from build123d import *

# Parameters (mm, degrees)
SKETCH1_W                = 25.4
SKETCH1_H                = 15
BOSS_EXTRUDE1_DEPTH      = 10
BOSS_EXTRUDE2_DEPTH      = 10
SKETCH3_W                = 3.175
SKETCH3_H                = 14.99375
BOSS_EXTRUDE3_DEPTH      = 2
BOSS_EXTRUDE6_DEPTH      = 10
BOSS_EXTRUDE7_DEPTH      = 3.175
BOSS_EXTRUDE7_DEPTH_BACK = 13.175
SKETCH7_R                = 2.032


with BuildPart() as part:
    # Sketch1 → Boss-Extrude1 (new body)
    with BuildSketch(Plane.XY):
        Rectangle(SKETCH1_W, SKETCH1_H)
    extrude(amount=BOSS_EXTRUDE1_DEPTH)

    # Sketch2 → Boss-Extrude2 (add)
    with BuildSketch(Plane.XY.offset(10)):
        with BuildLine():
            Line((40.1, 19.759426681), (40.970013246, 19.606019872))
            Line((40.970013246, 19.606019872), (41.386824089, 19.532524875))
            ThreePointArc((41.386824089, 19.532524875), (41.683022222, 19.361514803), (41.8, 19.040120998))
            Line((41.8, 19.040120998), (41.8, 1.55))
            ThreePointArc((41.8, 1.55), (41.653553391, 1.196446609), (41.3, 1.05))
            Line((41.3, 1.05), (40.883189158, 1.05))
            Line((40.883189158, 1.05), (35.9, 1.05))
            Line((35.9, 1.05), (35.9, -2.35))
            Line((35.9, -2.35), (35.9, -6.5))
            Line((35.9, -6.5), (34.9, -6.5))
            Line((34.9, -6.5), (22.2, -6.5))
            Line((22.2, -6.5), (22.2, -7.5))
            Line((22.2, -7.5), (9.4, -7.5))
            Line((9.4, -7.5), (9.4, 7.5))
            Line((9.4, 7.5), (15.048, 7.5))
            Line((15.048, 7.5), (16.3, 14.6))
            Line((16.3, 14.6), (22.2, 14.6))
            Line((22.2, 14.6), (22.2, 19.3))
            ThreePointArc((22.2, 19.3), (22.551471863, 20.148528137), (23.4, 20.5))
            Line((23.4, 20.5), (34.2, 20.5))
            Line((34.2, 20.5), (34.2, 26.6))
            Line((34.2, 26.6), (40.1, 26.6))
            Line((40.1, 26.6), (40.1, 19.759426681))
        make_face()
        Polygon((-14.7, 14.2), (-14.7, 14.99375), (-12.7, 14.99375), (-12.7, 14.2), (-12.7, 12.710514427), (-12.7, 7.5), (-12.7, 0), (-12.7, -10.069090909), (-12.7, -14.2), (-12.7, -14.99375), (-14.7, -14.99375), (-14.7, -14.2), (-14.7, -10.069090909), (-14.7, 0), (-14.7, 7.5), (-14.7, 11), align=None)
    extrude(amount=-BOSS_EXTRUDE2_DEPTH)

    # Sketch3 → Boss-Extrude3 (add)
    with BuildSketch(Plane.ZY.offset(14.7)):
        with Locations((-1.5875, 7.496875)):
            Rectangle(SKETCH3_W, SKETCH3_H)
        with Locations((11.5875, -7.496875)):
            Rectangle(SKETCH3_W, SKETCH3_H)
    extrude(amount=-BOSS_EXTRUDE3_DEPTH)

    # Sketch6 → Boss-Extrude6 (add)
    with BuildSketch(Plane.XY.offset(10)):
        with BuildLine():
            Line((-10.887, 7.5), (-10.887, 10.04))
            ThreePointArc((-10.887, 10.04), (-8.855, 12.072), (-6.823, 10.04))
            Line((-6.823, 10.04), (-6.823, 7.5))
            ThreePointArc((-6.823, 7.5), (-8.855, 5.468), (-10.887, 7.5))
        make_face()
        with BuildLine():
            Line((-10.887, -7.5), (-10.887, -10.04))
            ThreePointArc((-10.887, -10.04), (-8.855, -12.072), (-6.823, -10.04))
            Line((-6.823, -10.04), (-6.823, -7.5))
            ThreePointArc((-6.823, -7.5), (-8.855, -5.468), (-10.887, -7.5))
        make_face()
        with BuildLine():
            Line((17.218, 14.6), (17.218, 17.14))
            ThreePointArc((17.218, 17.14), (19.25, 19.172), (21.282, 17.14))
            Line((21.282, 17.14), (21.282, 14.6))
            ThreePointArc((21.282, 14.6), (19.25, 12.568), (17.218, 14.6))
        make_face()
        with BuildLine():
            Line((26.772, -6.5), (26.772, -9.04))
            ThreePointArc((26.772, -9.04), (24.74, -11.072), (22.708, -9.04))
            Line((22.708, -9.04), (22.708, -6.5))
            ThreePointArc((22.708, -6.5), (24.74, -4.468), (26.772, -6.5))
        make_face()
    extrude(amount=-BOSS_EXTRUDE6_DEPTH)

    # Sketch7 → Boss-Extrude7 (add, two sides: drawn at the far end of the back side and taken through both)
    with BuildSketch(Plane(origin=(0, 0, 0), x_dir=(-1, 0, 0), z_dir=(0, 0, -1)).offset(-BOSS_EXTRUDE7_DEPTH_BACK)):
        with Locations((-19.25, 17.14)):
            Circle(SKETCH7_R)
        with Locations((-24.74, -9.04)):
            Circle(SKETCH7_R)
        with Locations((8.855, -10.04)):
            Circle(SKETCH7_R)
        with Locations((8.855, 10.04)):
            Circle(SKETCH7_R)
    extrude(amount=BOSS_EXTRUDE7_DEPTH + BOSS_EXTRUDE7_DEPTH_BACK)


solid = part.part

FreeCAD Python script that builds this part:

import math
import FreeCAD as App
import Part
import Sketcher
Q = App.Units.Quantity

doc = App.newDocument("Part")
params = doc.addObject("Spreadsheet::Sheet", "Params")
for row, (alias, value) in enumerate([
    ("sketch1_height", "15 mm"),
    ("sketch1_width", "25.4 mm"),
    ("pad1_length", "10 mm"),
    ("sketch2_radius", "1.2 mm"),
    ("sketch2_radius2", "0.5 mm"),
    ("sketch2_width", "2 mm"),
    ("sketch2_height", "15 mm"),
    ("sketch2_height2", "1 mm"),
    ("pad2_length", "10 mm"),
    ("pad3_length", "2 mm"),
    ("sketch4_height", "2.54 mm"),
    ("pad4_length", "10 mm"),
    ("pad5_length", "3.175 mm"),
    ("pad5_length2", "13.175 mm"),
], start=1):
    params.set(f"A{row}", alias)
    params.set(f"B{row}", "=" + value)
    params.setAlias(f"B{row}", alias)

body = doc.addObject("PartDesign::Body", "Body")

# Sketch on XY plane
sketch1 = body.newObject("Sketcher::SketchObject", "Sketch")
sketch1.AttachmentSupport = (doc.getObject("XY_Plane"), [""])
sketch1.MapMode = "FlatFace"
sketch1.addGeometry(Part.LineSegment(App.Vector(-13, 8, 0), App.Vector(-13, -8, 0)), False)
sketch1.addGeometry(Part.LineSegment(App.Vector(-13, -8, 0), App.Vector(13, -8, 0)), False)
sketch1.addGeometry(Part.LineSegment(App.Vector(13, -8, 0), App.Vector(13, 8, 0)), False)
sketch1.addGeometry(Part.LineSegment(App.Vector(13, 8, 0), App.Vector(-13, 8, 0)), False)
sketch1.addConstraint(Sketcher.Constraint("Coincident", 0, 2, 1, 1))
sketch1.addConstraint(Sketcher.Constraint("Coincident", 1, 2, 2, 1))
sketch1.addConstraint(Sketcher.Constraint("Coincident", 2, 2, 3, 1))
sketch1.addConstraint(Sketcher.Constraint("Coincident", 3, 2, 0, 1))
sketch1.addConstraint(Sketcher.Constraint("Vertical", 0))
sketch1.addConstraint(Sketcher.Constraint("Horizontal", 1))
sketch1.addConstraint(Sketcher.Constraint("Vertical", 2))
sketch1.addConstraint(Sketcher.Constraint("Horizontal", 3))
sketch1.addConstraint(Sketcher.Constraint("Symmetric", 0, 2, 2, 2, -1, 1))
sketch1.addConstraint(Sketcher.Constraint("DistanceY", 0, 2, 0, 1, Q("15 mm")))
sketch1.addConstraint(Sketcher.Constraint("DistanceX", 1, 1, 1, 2, Q("25.4 mm")))
sketch1.setExpression("Constraints[9]", "Params.sketch1_height")
sketch1.setExpression("Constraints[10]", "Params.sketch1_width")
pad1 = body.newObject("PartDesign::Pad", "Pad")
pad1.Profile = sketch1
pad1.setExpression("Length", "Params.pad1_length")

# Sketch on XY plane
sketch2 = body.newObject("Sketcher::SketchObject", "Sketch001")
sketch2.AttachmentSupport = (doc.getObject("XY_Plane"), [""])
sketch2.MapMode = "FlatFace"
sketch2.AttachmentOffset = App.Placement(App.Vector(0, 0, 10), App.Rotation())
sketch2.addGeometry(Part.LineSegment(App.Vector(40.97, 19.61, 0), App.Vector(40.1, 19.76, 0)), False)
sketch2.addGeometry(Part.LineSegment(App.Vector(40.1, 19.76, 0), App.Vector(40.1, 26.6, 0)), False)
sketch2.addGeometry(Part.LineSegment(App.Vector(40.1, 26.6, 0), App.Vector(34.2, 26.6, 0)), False)
sketch2.addGeometry(Part.LineSegment(App.Vector(34.2, 26.6, 0), App.Vector(34.2, 20.5, 0)), False)
sketch2.addGeometry(Part.LineSegment(App.Vector(34.2, 20.5, 0), App.Vector(23.4, 20.5, 0)), False)
sketch2.addGeometry(Part.ArcOfCircle(Part.Circle(App.Vector(23.4, 19.3, 0), App.Vector(0, 0, 1), 1.2), math.radians(90), math.radians(180)), False)
sketch2.addGeometry(Part.LineSegment(App.Vector(22.2, 19.3, 0), App.Vector(22.2, 14.6, 0)), False)
sketch2.addGeometry(Part.LineSegment(App.Vector(22.2, 14.6, 0), App.Vector(16.3, 14.6, 0)), False)
sketch2.addGeometry(Part.LineSegment(App.Vector(16.3, 14.6, 0), App.Vector(15.05, 7.5, 0)), False)
sketch2.addGeometry(Part.LineSegment(App.Vector(15.05, 7.5, 0), App.Vector(9.4, 7.5, 0)), False)
sketch2.addGeometry(Part.LineSegment(App.Vector(9.4, 7.5, 0), App.Vector(9.4, -7.5, 0)), False)
sketch2.addGeometry(Part.LineSegment(App.Vector(9.4, -7.5, 0), App.Vector(22.2, -7.5, 0)), False)
sketch2.addGeometry(Part.LineSegment(App.Vector(22.2, -7.5, 0), App.Vector(22.2, -6.5, 0)), False)
sketch2.addGeometry(Part.LineSegment(App.Vector(22.2, -6.5, 0), App.Vector(35.9, -6.5, 0)), False)
sketch2.addGeometry(Part.LineSegment(App.Vector(35.9, -6.5, 0), App.Vector(35.9, 1.05, 0)), False)
sketch2.addGeometry(Part.LineSegment(App.Vector(35.9, 1.05, 0), App.Vector(41.3, 1.05, 0)), False)
sketch2.addGeometry(Part.ArcOfCircle(Part.Circle(App.Vector(41.3, 1.55, 0), App.Vector(0, 0, 1), 0.5), math.radians(-90), math.radians(0)), False)
sketch2.addGeometry(Part.LineSegment(App.Vector(41.8, 1.55, 0), App.Vector(41.8, 19.04, 0)), False)
sketch2.addGeometry(Part.ArcOfCircle(Part.Circle(App.Vector(41.3, 19.04, 0), App.Vector(0, 0, 1), 0.5), math.radians(0), math.radians(80)), False)
sketch2.addGeometry(Part.LineSegment(App.Vector(41.39, 19.53, 0), App.Vector(40.97, 19.61, 0)), False)
sketch2.addGeometry(Part.LineSegment(App.Vector(-14.7, 14.99, 0), App.Vector(-14.7, -14.99, 0)), False)
sketch2.addGeometry(Part.LineSegment(App.Vector(-14.7, -14.99, 0), App.Vector(-12.7, -14.99, 0)), False)
sketch2.addGeometry(Part.LineSegment(App.Vector(-12.7, -14.99, 0), App.Vector(-12.7, 14.99, 0)), False)
sketch2.addGeometry(Part.LineSegment(App.Vector(-12.7, 14.99, 0), App.Vector(-14.7, 14.99, 0)), False)
sketch2.addConstraint(Sketcher.Constraint("Coincident", 0, 2, 1, 1))
sketch2.addConstraint(Sketcher.Constraint("Coincident", 1, 2, 2, 1))
sketch2.addConstraint(Sketcher.Constraint("Coincident", 2, 2, 3, 1))
sketch2.addConstraint(Sketcher.Constraint("Coincident", 3, 2, 4, 1))
sketch2.addConstraint(Sketcher.Constraint("Tangent", 4, 2, 5, 1))
sketch2.addConstraint(Sketcher.Constraint("Tangent", 5, 2, 6, 1))
sketch2.addConstraint(Sketcher.Constraint("Coincident", 6, 2, 7, 1))
sketch2.addConstraint(Sketcher.Constraint("Coincident", 7, 2, 8, 1))
sketch2.addConstraint(Sketcher.Constraint("Coincident", 8, 2, 9, 1))
sketch2.addConstraint(Sketcher.Constraint("Coincident", 9, 2, 10, 1))
sketch2.addConstraint(Sketcher.Constraint("Coincident", 10, 2, 11, 1))
sketch2.addConstraint(Sketcher.Constraint("Coincident", 11, 2, 12, 1))
sketch2.addConstraint(Sketcher.Constraint("Coincident", 12, 2, 13, 1))
sketch2.addConstraint(Sketcher.Constraint("Coincident", 13, 2, 14, 1))
sketch2.addConstraint(Sketcher.Constraint("Coincident", 14, 2, 15, 1))
sketch2.addConstraint(Sketcher.Constraint("Tangent", 15, 2, 16, 1))
sketch2.addConstraint(Sketcher.Constraint("Tangent", 16, 2, 17, 1))
sketch2.addConstraint(Sketcher.Constraint("Tangent", 17, 2, 18, 1))
sketch2.addConstraint(Sketcher.Constraint("Tangent", 18, 2, 19, 1))
sketch2.addConstraint(Sketcher.Constraint("Coincident", 19, 2, 0, 1))
sketch2.addConstraint(Sketcher.Constraint("Coincident", 20, 2, 21, 1))
sketch2.addConstraint(Sketcher.Constraint("Coincident", 21, 2, 22, 1))
sketch2.addConstraint(Sketcher.Constraint("Coincident", 22, 2, 23, 1))
sketch2.addConstraint(Sketcher.Constraint("Coincident", 23, 2, 20, 1))
sketch2.addConstraint(Sketcher.Constraint("Vertical", 1))
sketch2.addConstraint(Sketcher.Constraint("Horizontal", 2))
sketch2.addConstraint(Sketcher.Constraint("Vertical", 3))
sketch2.addConstraint(Sketcher.Constraint("Horizontal", 4))
sketch2.addConstraint(Sketcher.Constraint("Vertical", 6))
sketch2.addConstraint(Sketcher.Constraint("Horizontal", 7))
sketch2.addConstraint(Sketcher.Constraint("Horizontal", 9))
sketch2.addConstraint(Sketcher.Constraint("Vertical", 10))
sketch2.addConstraint(Sketcher.Constraint("Horizontal", 11))
sketch2.addConstraint(Sketcher.Constraint("Vertical", 12))
sketch2.addConstraint(Sketcher.Constraint("Horizontal", 13))
sketch2.addConstraint(Sketcher.Constraint("Vertical", 14))
sketch2.addConstraint(Sketcher.Constraint("Horizontal", 15))
sketch2.addConstraint(Sketcher.Constraint("Vertical", 17))
sketch2.addConstraint(Sketcher.Constraint("Vertical", 20))
sketch2.addConstraint(Sketcher.Constraint("Horizontal", 21))
sketch2.addConstraint(Sketcher.Constraint("Vertical", 22))
sketch2.addConstraint(Sketcher.Constraint("Horizontal", 23))
sketch2.addConstraint(Sketcher.Constraint("Equal", 16, 18))
sketch2.addConstraint(Sketcher.Constraint("Parallel", 0, 19))
sketch2.addConstraint(Sketcher.Constraint("Vertical", 6, 2, 11, 2))
sketch2.addConstraint(Sketcher.Constraint("Equal", 2, 7))
sketch2.addConstraint(Sketcher.Constraint("Radius", 5, Q("1.2 mm")))
sketch2.addConstraint(Sketcher.Constraint("Radius", 16, Q("0.5 mm")))
sketch2.addConstraint(Sketcher.Constraint("DistanceX", 21, 1, 21, 2, Q("2 mm")))
sketch2.addConstraint(Sketcher.Constraint("DistanceY", 10, 2, 10, 1, Q("15 mm")))
sketch2.addConstraint(Sketcher.Constraint("DistanceY", 12, 1, 12, 2, Q("1 mm")))
sketch2.addConstraint(Sketcher.Constraint("Angle", 0, Q("170 deg")))
sketch2.addConstraint(Sketcher.Constraint("DistanceX", 2, 2, 2, 1, Q("5.9 mm")))
sketch2.addConstraint(Sketcher.Constraint("DistanceX", 4, 2, 4, 1, Q("10.8 mm")))
sketch2.addConstraint(Sketcher.Constraint("DistanceX", 11, 1, 11, 2, Q("12.8 mm")))
sketch2.addConstraint(Sketcher.Constraint("DistanceX", 13, 1, 13, 2, Q("13.7 mm")))
sketch2.addConstraint(Sketcher.Constraint("DistanceX", 15, 1, 15, 2, Q("5.4 mm")))
sketch2.addConstraint(Sketcher.Constraint("DistanceY", 3, 2, 3, 1, Q("6.1 mm")))
sketch2.addConstraint(Sketcher.Constraint("DistanceY", 6, 2, 6, 1, Q("4.7 mm")))
sketch2.addConstraint(Sketcher.Constraint("DistanceY", 8, 2, 4, 2, Q("13 mm")))
sketch2.addConstraint(Sketcher.Constraint("DistanceX", 22, 2, 7, 2, Q("29 mm")))
sketch2.addConstraint(Sketcher.Constraint("DistanceY", 14, 1, 14, 2, Q("7.55 mm")))
sketch2.addConstraint(Sketcher.Constraint("DistanceX", -1, 1, 5, 3, Q("23.4 mm")))
sketch2.addConstraint(Sketcher.Constraint("DistanceY", -1, 1, 5, 3, Q("19.3 mm")))
sketch2.addConstraint(Sketcher.Constraint("DistanceX", 9, 2, 9, 1, Q("5.648 mm")))
sketch2.addConstraint(Sketcher.Constraint("DistanceY", 20, 2, 20, 1, Q("29.9875 mm")))
sketch2.addConstraint(Sketcher.Constraint("DistanceY", 17, 1, 17, 2, Q("17.490121 mm")))
sketch2.addConstraint(Sketcher.Constraint("DistanceY", 18, 3, 19, 2, Q("0.565899 mm")))
sketch2.addConstraint(Sketcher.Constraint("DistanceY", 20, 2, -1, 1, Q("14.99375 mm")))
sketch2.setExpression("Constraints[46]", "Params.sketch2_radius")
sketch2.setExpression("Constraints[47]", "Params.sketch2_radius2")
sketch2.setExpression("Constraints[48]", "Params.sketch2_width")
sketch2.setExpression("Constraints[49]", "Params.sketch2_height")
sketch2.setExpression("Constraints[50]", "Params.sketch2_height2")
pad2 = body.newObject("PartDesign::Pad", "Pad001")
pad2.Profile = sketch2
pad2.setExpression("Length", "Params.pad2_length")
pad2.Reversed = True

# Sketch on YZ plane
sketch3 = body.newObject("Sketcher::SketchObject", "Sketch002")
sketch3.AttachmentSupport = (doc.getObject("YZ_Plane"), [""])
sketch3.MapMode = "FlatFace"
sketch3.AttachmentOffset = App.Placement(App.Vector(0, 0, -14.7), App.Rotation())
sketch3.addGeometry(Part.LineSegment(App.Vector(15, -3.2, 0), App.Vector(0, -3.2, 0)), False)
sketch3.addGeometry(Part.LineSegment(App.Vector(0, -3.2, 0), App.Vector(0, 0, 0)), False)
sketch3.addGeometry(Part.LineSegment(App.Vector(0, 0, 0), App.Vector(15, 0, 0)), False)
sketch3.addGeometry(Part.LineSegment(App.Vector(15, 0, 0), App.Vector(15, -3.2, 0)), False)
sketch3.addGeometry(Part.LineSegment(App.Vector(0, 10, 0), App.Vector(-15, 10, 0)), False)
sketch3.addGeometry(Part.LineSegment(App.Vector(-15, 10, 0), App.Vector(-15, 13.2, 0)), False)
sketch3.addGeometry(Part.LineSegment(App.Vector(-15, 13.2, 0), App.Vector(0, 13.2, 0)), False)
sketch3.addGeometry(Part.LineSegment(App.Vector(0, 13.2, 0), App.Vector(0, 10, 0)), False)
sketch3.addConstraint(Sketcher.Constraint("Coincident", 0, 2, 1, 1))
sketch3.addConstraint(Sketcher.Constraint("Coincident", 1, 2, 2, 1))
sketch3.addConstraint(Sketcher.Constraint("Coincident", 2, 2, 3, 1))
sketch3.addConstraint(Sketcher.Constraint("Coincident", 3, 2, 0, 1))
sketch3.addConstraint(Sketcher.Constraint("Coincident", 4, 2, 5, 1))
sketch3.addConstraint(Sketcher.Constraint("Coincident", 5, 2, 6, 1))
sketch3.addConstraint(Sketcher.Constraint("Coincident", 6, 2, 7, 1))
sketch3.addConstraint(Sketcher.Constraint("Coincident", 7, 2, 4, 1))
sketch3.addConstraint(Sketcher.Constraint("Horizontal", 0))
sketch3.addConstraint(Sketcher.Constraint("Vertical", 1))
sketch3.addConstraint(Sketcher.Constraint("Horizontal", 2))
sketch3.addConstraint(Sketcher.Constraint("Vertical", 3))
sketch3.addConstraint(Sketcher.Constraint("Horizontal", 4))
sketch3.addConstraint(Sketcher.Constraint("Vertical", 5))
sketch3.addConstraint(Sketcher.Constraint("Horizontal", 6))
sketch3.addConstraint(Sketcher.Constraint("Vertical", 7))
sketch3.addConstraint(Sketcher.Constraint("Coincident", 1, 2, -1, 1))
sketch3.addConstraint(Sketcher.Constraint("PointOnObject", 6, 2, -2))
sketch3.addConstraint(Sketcher.Constraint("Equal", 2, 4))
sketch3.addConstraint(Sketcher.Constraint("Equal", 3, 5))
sketch3.addConstraint(Sketcher.Constraint("DistanceY", -1, 1, 4, 2, Q("10 mm")))
sketch3.addConstraint(Sketcher.Constraint("DistanceY", 1, 1, 1, 2, Q("3.175 mm")))
sketch3.addConstraint(Sketcher.Constraint("DistanceX", 0, 2, 0, 1, Q("14.99375 mm")))
pad3 = body.newObject("PartDesign::Pad", "Pad002")
pad3.Profile = sketch3
pad3.setExpression("Length", "Params.pad3_length")

# Sketch on XY plane
sketch4 = body.newObject("Sketcher::SketchObject", "Sketch003")
sketch4.AttachmentSupport = (doc.getObject("XY_Plane"), [""])
sketch4.MapMode = "FlatFace"
sketch4.AttachmentOffset = App.Placement(App.Vector(0, 0, 10), App.Rotation())
sketch4.addGeometry(Part.LineSegment(App.Vector(-10.9, 10, 0), App.Vector(-10.9, 7.5, 0)), False)
sketch4.addGeometry(Part.ArcOfCircle(Part.Circle(App.Vector(-8.9, 7.5, 0), App.Vector(0, 0, 1), 2), math.radians(180), math.radians(360)), False)
sketch4.addGeometry(Part.LineSegment(App.Vector(-6.8, 7.5, 0), App.Vector(-6.8, 10, 0)), False)
sketch4.addGeometry(Part.ArcOfCircle(Part.Circle(App.Vector(-8.9, 10, 0), App.Vector(0, 0, 1), 2), math.radians(0), math.radians(180)), False)
sketch4.addGeometry(Part.LineSegment(App.Vector(-10.9, -7.5, 0), App.Vector(-10.9, -10, 0)), False)
sketch4.addGeometry(Part.ArcOfCircle(Part.Circle(App.Vector(-8.9, -10, 0), App.Vector(0, 0, 1), 2), math.radians(180), math.radians(360)), False)
sketch4.addGeometry(Part.LineSegment(App.Vector(-6.8, -10, 0), App.Vector(-6.8, -7.5, 0)), False)
sketch4.addGeometry(Part.ArcOfCircle(Part.Circle(App.Vector(-8.9, -7.5, 0), App.Vector(0, 0, 1), 2), math.radians(0), math.radians(180)), False)
sketch4.addGeometry(Part.LineSegment(App.Vector(17.2, 17.1, 0), App.Vector(17.2, 14.6, 0)), False)
sketch4.addGeometry(Part.ArcOfCircle(Part.Circle(App.Vector(19.2, 14.6, 0), App.Vector(0, 0, 1), 2), math.radians(180), math.radians(360)), False)
sketch4.addGeometry(Part.LineSegment(App.Vector(21.3, 14.6, 0), App.Vector(21.3, 17.1, 0)), False)
sketch4.addGeometry(Part.ArcOfCircle(Part.Circle(App.Vector(19.2, 17.1, 0), App.Vector(0, 0, 1), 2), math.radians(0), math.radians(180)), False)
sketch4.addGeometry(Part.LineSegment(App.Vector(26.8, -9, 0), App.Vector(26.8, -6.5, 0)), False)
sketch4.addGeometry(Part.ArcOfCircle(Part.Circle(App.Vector(24.7, -6.5, 0), App.Vector(0, 0, 1), 2), math.radians(0), math.radians(180)), False)
sketch4.addGeometry(Part.LineSegment(App.Vector(22.7, -6.5, 0), App.Vector(22.7, -9, 0)), False)
sketch4.addGeometry(Part.ArcOfCircle(Part.Circle(App.Vector(24.7, -9, 0), App.Vector(0, 0, 1), 2), math.radians(180), math.radians(360)), False)
sketch4.addConstraint(Sketcher.Constraint("Tangent", 0, 2, 1, 1))
sketch4.addConstraint(Sketcher.Constraint("Tangent", 1, 2, 2, 1))
sketch4.addConstraint(Sketcher.Constraint("Tangent", 2, 2, 3, 1))
sketch4.addConstraint(Sketcher.Constraint("Tangent", 3, 2, 0, 1))
sketch4.addConstraint(Sketcher.Constraint("Tangent", 4, 2, 5, 1))
sketch4.addConstraint(Sketcher.Constraint("Tangent", 5, 2, 6, 1))
sketch4.addConstraint(Sketcher.Constraint("Tangent", 6, 2, 7, 1))
sketch4.addConstraint(Sketcher.Constraint("Tangent", 7, 2, 4, 1))
sketch4.addConstraint(Sketcher.Constraint("Tangent", 8, 2, 9, 1))
sketch4.addConstraint(Sketcher.Constraint("Tangent", 9, 2, 10, 1))
sketch4.addConstraint(Sketcher.Constraint("Tangent", 10, 2, 11, 1))
sketch4.addConstraint(Sketcher.Constraint("Tangent", 11, 2, 8, 1))
sketch4.addConstraint(Sketcher.Constraint("Tangent", 12, 2, 13, 1))
sketch4.addConstraint(Sketcher.Constraint("Tangent", 13, 2, 14, 1))
sketch4.addConstraint(Sketcher.Constraint("Tangent", 14, 2, 15, 1))
sketch4.addConstraint(Sketcher.Constraint("Tangent", 15, 2, 12, 1))
sketch4.addConstraint(Sketcher.Constraint("Vertical", 0))
sketch4.addConstraint(Sketcher.Constraint("Vertical", 2))
sketch4.addConstraint(Sketcher.Constraint("Vertical", 4))
sketch4.addConstraint(Sketcher.Constraint("Vertical", 6))
sketch4.addConstraint(Sketcher.Constraint("Vertical", 8))
sketch4.addConstraint(Sketcher.Constraint("Vertical", 10))
sketch4.addConstraint(Sketcher.Constraint("Vertical", 12))
sketch4.addConstraint(Sketcher.Constraint("Vertical", 14))
sketch4.addConstraint(Sketcher.Constraint("Equal", 3, 5))
sketch4.addConstraint(Sketcher.Constraint("Equal", 7, 9))
sketch4.addConstraint(Sketcher.Constraint("Equal", 11, 13))
sketch4.addConstraint(Sketcher.Constraint("Symmetric", 3, 3, 5, 3, -1))
sketch4.addConstraint(Sketcher.Constraint("Equal", 2, 4))
sketch4.addConstraint(Sketcher.Constraint("Equal", 6, 8))
sketch4.addConstraint(Sketcher.Constraint("Equal", 10, 12))
sketch4.addConstraint(Sketcher.Constraint("Radius", 1, Q("2.032 mm")))
sketch4.addConstraint(Sketcher.Constraint("DistanceY", 7, 3, 1, 3, Q("15 mm")))
sketch4.addConstraint(Sketcher.Constraint("DistanceY", 7, 3, 13, 3, Q("1 mm")))
sketch4.addConstraint(Sketcher.Constraint("DistanceY", 0, 2, 0, 1, Q("2.54 mm")))
sketch4.addConstraint(Sketcher.Constraint("DistanceY", -1, 1, 9, 3, Q("14.6 mm")))
sketch4.addConstraint(Sketcher.Constraint("DistanceX", -1, 1, 9, 3, Q("19.25 mm")))
sketch4.addConstraint(Sketcher.Constraint("DistanceX", -1, 1, 13, 3, Q("24.74 mm")))
sketch4.addConstraint(Sketcher.Constraint("DistanceX", 1, 3, -1, 1, Q("8.855 mm")))
sketch4.setExpression("Constraints[34]", "Params.sketch4_height")
pad4 = body.newObject("PartDesign::Pad", "Pad003")
pad4.Profile = sketch4
pad4.setExpression("Length", "Params.pad4_length")
pad4.Reversed = True

# Sketch on XY plane
sketch5 = body.newObject("Sketcher::SketchObject", "Sketch004")
sketch5.AttachmentSupport = (doc.getObject("XY_Plane"), [""])
sketch5.MapMode = "FlatFace"
sketch5.addGeometry(Part.Circle(App.Vector(19.2, 17.1, 0), App.Vector(0, 0, 1), 2), False)
sketch5.addGeometry(Part.Circle(App.Vector(24.7, -9, 0), App.Vector(0, 0, 1), 2), False)
sketch5.addGeometry(Part.Circle(App.Vector(-8.9, -10, 0), App.Vector(0, 0, 1), 2), False)
sketch5.addGeometry(Part.Circle(App.Vector(-8.9, 10, 0), App.Vector(0, 0, 1), 2), False)
sketch5.addConstraint(Sketcher.Constraint("Equal", 0, 1))
sketch5.addConstraint(Sketcher.Constraint("Equal", 1, 2))
sketch5.addConstraint(Sketcher.Constraint("Equal", 2, 3))
sketch5.addConstraint(Sketcher.Constraint("Symmetric", 2, 3, 3, 3, -1))
sketch5.addConstraint(Sketcher.Constraint("Diameter", 0, Q("4.064 mm")))
sketch5.addConstraint(Sketcher.Constraint("DistanceY", 2, 3, 1, 3, Q("1 mm")))
sketch5.addConstraint(Sketcher.Constraint("DistanceY", 3, 3, 0, 3, Q("7.1 mm")))
sketch5.addConstraint(Sketcher.Constraint("DistanceX", -1, 1, 0, 3, Q("19.25 mm")))
sketch5.addConstraint(Sketcher.Constraint("DistanceY", -1, 1, 0, 3, Q("17.14 mm")))
sketch5.addConstraint(Sketcher.Constraint("DistanceX", -1, 1, 1, 3, Q("24.74 mm")))
sketch5.addConstraint(Sketcher.Constraint("DistanceX", 2, 3, -1, 1, Q("8.855 mm")))
pad5 = body.newObject("PartDesign::Pad", "Pad004")
pad5.Profile = sketch5
pad5.Type = "TwoLengths"
pad5.setExpression("Length", "Params.pad5_length")
pad5.setExpression("Length2", "Params.pad5_length2")
pad5.Reversed = True

doc.recompute()
